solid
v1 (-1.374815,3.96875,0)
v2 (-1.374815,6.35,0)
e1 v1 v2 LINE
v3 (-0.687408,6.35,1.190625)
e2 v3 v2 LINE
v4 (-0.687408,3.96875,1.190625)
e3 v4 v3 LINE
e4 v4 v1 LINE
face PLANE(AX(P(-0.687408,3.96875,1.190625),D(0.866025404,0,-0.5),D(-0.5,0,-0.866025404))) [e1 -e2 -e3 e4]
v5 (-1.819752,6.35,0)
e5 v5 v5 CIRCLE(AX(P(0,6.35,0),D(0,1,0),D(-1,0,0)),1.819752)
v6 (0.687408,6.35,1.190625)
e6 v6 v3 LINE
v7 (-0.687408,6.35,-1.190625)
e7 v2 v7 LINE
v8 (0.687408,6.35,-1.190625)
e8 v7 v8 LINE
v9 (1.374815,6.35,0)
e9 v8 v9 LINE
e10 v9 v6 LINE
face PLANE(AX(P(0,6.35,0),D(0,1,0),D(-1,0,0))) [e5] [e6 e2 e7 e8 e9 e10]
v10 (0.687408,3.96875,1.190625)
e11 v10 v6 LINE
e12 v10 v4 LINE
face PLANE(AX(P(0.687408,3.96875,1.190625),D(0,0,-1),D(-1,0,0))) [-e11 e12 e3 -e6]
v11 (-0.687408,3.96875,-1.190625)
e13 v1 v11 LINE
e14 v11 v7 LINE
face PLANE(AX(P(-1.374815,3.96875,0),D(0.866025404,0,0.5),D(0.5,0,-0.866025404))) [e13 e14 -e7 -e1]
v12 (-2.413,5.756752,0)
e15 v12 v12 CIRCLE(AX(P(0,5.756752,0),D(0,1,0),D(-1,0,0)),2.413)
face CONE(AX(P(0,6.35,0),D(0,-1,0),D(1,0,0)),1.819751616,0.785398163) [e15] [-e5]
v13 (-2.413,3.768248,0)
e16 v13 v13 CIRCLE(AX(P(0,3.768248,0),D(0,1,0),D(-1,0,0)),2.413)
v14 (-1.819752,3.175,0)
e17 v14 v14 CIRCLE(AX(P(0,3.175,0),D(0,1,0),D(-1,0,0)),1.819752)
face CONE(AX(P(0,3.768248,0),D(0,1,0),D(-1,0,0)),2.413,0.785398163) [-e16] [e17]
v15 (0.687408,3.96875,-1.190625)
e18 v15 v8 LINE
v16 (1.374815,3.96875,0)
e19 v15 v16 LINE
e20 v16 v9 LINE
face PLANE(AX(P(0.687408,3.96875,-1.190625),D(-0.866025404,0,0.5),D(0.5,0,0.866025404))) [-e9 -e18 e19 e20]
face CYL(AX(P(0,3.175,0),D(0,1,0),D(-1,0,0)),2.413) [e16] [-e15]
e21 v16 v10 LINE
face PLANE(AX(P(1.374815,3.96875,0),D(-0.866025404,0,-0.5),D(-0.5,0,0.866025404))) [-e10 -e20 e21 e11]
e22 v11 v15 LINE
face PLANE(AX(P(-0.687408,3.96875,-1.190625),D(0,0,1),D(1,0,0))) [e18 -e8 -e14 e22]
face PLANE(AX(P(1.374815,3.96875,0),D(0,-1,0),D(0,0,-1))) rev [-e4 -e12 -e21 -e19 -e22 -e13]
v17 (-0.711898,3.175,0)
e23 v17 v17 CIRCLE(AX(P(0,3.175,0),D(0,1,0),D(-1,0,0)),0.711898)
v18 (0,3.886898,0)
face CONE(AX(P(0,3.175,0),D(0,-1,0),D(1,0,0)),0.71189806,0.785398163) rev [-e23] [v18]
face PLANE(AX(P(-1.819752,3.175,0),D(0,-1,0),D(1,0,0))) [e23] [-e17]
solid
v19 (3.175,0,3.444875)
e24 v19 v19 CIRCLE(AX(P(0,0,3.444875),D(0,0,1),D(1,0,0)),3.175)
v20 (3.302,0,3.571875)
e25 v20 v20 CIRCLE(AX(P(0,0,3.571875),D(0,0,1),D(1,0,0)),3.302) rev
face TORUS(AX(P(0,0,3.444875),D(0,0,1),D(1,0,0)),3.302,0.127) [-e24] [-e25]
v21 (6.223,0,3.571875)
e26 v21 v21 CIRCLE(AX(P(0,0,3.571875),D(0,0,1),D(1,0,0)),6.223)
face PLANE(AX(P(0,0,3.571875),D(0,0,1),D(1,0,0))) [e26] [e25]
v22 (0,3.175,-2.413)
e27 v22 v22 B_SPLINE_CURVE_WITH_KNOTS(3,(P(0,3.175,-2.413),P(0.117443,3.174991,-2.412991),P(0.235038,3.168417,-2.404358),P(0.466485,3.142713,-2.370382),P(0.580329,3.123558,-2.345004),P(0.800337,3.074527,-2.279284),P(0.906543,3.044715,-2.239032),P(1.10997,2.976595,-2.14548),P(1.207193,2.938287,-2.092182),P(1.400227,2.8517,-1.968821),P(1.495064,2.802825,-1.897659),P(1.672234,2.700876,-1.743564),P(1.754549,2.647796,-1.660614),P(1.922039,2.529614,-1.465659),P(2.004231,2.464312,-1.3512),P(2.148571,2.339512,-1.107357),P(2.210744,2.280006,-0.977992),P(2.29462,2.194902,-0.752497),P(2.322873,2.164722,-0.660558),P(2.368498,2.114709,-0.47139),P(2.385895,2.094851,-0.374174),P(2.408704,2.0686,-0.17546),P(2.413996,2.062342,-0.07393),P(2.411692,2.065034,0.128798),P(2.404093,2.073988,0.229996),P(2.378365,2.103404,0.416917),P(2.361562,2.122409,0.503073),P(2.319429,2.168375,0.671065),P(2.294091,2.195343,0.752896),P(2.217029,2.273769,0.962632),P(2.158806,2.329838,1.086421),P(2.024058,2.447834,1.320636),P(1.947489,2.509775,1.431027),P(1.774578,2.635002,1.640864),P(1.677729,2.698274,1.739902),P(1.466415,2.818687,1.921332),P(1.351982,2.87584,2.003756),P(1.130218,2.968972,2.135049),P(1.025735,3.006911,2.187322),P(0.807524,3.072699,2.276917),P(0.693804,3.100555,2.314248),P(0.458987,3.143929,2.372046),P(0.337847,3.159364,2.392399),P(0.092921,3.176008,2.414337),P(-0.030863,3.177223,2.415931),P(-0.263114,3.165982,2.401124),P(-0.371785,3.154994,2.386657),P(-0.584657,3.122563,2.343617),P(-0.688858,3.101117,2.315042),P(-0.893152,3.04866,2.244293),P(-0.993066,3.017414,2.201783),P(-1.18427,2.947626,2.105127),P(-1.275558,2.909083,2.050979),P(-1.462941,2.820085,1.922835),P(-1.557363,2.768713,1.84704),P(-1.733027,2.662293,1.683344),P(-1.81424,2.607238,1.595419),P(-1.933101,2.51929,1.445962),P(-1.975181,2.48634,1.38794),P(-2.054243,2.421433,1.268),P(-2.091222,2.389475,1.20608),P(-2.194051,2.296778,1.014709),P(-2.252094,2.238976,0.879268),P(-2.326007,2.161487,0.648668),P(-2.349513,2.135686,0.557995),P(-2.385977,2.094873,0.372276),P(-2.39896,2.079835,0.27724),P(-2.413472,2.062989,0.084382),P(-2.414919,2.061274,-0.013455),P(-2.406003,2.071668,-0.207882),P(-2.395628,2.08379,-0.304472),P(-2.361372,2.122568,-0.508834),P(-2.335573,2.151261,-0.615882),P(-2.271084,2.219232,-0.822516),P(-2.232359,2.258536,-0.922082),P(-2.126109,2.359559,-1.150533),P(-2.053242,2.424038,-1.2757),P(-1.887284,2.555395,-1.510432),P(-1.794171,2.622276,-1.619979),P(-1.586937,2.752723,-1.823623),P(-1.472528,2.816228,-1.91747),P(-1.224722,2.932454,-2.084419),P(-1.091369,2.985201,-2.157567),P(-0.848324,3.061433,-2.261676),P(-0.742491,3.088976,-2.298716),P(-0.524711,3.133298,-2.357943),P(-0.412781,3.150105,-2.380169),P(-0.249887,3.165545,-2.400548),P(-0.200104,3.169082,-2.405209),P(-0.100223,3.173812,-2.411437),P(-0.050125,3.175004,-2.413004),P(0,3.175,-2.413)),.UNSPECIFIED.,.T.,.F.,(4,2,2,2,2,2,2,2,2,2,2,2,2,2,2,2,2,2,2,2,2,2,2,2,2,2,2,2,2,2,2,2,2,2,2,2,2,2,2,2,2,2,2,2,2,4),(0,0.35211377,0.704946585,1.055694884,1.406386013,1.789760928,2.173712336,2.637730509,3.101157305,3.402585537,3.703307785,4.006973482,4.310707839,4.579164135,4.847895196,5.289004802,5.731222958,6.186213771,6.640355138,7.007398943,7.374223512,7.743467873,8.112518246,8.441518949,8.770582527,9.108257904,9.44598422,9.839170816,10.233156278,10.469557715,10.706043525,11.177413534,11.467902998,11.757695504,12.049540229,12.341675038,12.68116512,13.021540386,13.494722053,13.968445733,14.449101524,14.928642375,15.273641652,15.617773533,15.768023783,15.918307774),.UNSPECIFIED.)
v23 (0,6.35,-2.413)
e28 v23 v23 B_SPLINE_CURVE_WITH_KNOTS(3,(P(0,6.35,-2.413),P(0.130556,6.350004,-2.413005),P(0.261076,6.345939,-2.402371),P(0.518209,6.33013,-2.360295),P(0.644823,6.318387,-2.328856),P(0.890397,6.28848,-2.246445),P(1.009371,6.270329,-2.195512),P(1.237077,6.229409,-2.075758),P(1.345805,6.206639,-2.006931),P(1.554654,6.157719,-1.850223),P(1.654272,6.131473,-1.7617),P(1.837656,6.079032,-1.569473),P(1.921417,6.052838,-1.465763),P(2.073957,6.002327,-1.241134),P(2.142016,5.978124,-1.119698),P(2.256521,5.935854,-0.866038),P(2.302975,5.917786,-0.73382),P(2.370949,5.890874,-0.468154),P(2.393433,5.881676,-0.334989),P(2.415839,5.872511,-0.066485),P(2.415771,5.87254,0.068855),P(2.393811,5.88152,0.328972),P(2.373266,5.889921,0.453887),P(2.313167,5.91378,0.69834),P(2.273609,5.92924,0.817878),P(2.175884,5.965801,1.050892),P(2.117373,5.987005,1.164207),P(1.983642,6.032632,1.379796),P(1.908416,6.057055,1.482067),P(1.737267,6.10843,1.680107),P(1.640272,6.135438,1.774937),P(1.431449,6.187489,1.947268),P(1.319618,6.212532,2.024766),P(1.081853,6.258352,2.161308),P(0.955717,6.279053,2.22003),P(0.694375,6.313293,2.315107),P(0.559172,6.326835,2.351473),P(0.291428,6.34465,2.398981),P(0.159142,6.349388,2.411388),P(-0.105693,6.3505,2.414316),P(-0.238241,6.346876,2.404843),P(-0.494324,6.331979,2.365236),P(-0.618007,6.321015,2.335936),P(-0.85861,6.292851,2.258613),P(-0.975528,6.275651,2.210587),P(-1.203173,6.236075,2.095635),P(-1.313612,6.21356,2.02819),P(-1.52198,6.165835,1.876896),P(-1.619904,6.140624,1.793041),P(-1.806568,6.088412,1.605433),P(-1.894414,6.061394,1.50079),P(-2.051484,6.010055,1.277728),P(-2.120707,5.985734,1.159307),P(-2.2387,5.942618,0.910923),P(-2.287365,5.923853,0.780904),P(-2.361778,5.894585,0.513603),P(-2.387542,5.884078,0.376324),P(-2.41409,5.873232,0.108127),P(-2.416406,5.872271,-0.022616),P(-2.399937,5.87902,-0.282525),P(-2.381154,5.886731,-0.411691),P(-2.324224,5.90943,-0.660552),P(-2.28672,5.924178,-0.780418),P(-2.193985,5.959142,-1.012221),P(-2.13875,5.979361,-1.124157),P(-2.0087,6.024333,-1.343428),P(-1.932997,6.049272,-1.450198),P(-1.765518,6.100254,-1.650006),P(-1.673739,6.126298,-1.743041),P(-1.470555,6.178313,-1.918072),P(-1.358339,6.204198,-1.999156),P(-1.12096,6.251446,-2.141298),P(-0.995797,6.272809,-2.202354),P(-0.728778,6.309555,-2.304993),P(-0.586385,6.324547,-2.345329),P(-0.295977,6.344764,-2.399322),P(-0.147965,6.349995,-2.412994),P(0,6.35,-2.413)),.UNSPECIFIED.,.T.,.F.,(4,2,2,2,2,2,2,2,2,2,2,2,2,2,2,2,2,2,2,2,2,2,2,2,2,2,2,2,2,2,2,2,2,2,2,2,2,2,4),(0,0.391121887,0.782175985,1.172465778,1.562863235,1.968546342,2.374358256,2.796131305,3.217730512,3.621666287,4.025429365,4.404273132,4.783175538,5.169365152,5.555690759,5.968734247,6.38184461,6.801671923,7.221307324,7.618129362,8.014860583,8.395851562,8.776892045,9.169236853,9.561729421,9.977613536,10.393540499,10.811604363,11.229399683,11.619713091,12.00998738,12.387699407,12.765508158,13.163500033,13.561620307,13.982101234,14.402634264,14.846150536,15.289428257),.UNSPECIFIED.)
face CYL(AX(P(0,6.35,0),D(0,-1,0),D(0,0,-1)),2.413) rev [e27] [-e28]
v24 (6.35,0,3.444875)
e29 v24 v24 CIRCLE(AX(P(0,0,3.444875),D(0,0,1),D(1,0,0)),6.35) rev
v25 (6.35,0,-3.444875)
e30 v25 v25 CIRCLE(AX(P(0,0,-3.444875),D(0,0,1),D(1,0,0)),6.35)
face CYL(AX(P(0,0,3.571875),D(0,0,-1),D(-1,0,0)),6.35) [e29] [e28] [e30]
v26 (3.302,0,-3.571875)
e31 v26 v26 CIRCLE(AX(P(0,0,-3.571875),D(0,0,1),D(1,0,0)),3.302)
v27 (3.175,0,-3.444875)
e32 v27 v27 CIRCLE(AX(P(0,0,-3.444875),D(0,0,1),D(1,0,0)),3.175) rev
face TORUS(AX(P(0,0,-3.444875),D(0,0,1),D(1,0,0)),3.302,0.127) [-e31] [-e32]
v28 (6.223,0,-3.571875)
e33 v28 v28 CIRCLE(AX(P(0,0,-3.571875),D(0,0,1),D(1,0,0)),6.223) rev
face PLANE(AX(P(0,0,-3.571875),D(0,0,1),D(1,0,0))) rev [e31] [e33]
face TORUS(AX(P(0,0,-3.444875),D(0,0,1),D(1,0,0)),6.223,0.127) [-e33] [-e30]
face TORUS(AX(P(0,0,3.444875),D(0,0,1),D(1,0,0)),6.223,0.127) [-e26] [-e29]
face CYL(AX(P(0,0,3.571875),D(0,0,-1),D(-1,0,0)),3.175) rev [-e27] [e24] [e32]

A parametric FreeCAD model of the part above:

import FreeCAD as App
import Part
import Sketcher

V = App.Vector
Q = App.Units.Quantity


def edges_at(feature, points):
    """Names of the edges that pass closest to the given points."""
    edges = feature.Shape.Edges
    near = lambda p: min(range(len(edges)), key=lambda i: edges[i].distToShape(Part.Vertex(*p))[0])
    return sorted({f"Edge{near(p) + 1}" for p in points})

doc = App.newDocument("Part")
body = doc.addObject("PartDesign::Body", "Body")

# Sketch on XY plane
sketch1 = body.newObject("Sketcher::SketchObject", "Sketch")
sketch1.AttachmentSupport = (doc.getObject("XY_Plane"), [""])
sketch1.MapMode = "FlatFace"
sketch1.addGeometry(Part.Circle(V(0, 0, 0), V(0, 0, 1), 6.3), False)
sketch1.addGeometry(Part.Circle(V(0, 0, 0), V(0, 0, 1), 3.2), False)
sketch1.addConstraint(Sketcher.Constraint("Coincident", 0, 3, -1, 1))
sketch1.addConstraint(Sketcher.Constraint("Coincident", 1, 3, -1, 1))
sketch1.addConstraint(Sketcher.Constraint("Diameter", 0, Q("0.5 in")))
sketch1.addConstraint(Sketcher.Constraint("Diameter", 1, Q("0.25 in")))
pad1 = body.newObject("PartDesign::Pad", "Pad")
pad1.Profile = sketch1
pad1.Length = Q("0.28125 in")
pad1.Midplane = True

# Sketch on XZ plane
sketch2 = body.newObject("Sketcher::SketchObject", "Sketch001")
sketch2.AttachmentSupport = (doc.getObject("XZ_Plane"), [""])
sketch2.MapMode = "FlatFace"
sketch2.addGeometry(Part.Circle(V(0, 0, 0), V(0, 0, 1), 2.4), False)
sketch2.addConstraint(Sketcher.Constraint("Coincident", 0, 3, -1, 1))
sketch2.addConstraint(Sketcher.Constraint("Diameter", 0, Q("0.19 in")))
pocket1 = body.newObject("PartDesign::Pocket", "Pocket")
pocket1.Profile = sketch2
pocket1.Type = "ThroughAll"
doc.recompute()

fillet = body.newObject("PartDesign::Fillet", "Fillet")
fillet.Base = (pocket1, edges_at(pocket1, [
    (-6.35, 0, -3.572),
    (-6.35, 0, 3.572),
    (-3.175, 0, -3.572),
    (-3.175, 0, 3.572),
]))
fillet.Radius = Q("0.005 in")
body2 = doc.addObject("PartDesign::Body", "Body001")

# Sketch on XY plane
sketch3 = body2.newObject("Sketcher::SketchObject", "Sketch002")
sketch3.AttachmentSupport = (doc.getObject("XY_Plane001"), [""])
sketch3.MapMode = "FlatFace"
sketch3.addGeometry(Part.LineSegment(V(-1.8, 3.2, 0), V(-0.7, 3.2, 0)), False)
sketch3.addGeometry(Part.LineSegment(V(-0.7, 3.2, 0), V(0, 3.9, 0)), False)
sketch3.addGeometry(Part.LineSegment(V(0, 3.9, 0), V(0, 6.3, 0)), False)
sketch3.addGeometry(Part.LineSegment(V(0, 6.3, 0), V(-1.8, 6.3, 0)), False)
sketch3.addGeometry(Part.LineSegment(V(-1.8, 6.3, 0), V(-2.4, 5.8, 0)), False)
sketch3.addGeometry(Part.LineSegment(V(-2.4, 5.8, 0), V(-2.4, 3.8, 0)), False)
sketch3.addGeometry(Part.LineSegment(V(-2.4, 3.8, 0), V(-1.8, 3.2, 0)), False)
sketch3.addConstraint(Sketcher.Constraint("Coincident", 0, 2, 1, 1))
sketch3.addConstraint(Sketcher.Constraint("Coincident", 1, 2, 2, 1))
sketch3.addConstraint(Sketcher.Constraint("Coincident", 2, 2, 3, 1))
sketch3.addConstraint(Sketcher.Constraint("Coincident", 3, 2, 4, 1))
sketch3.addConstraint(Sketcher.Constraint("Coincident", 4, 2, 5, 1))
sketch3.addConstraint(Sketcher.Constraint("Coincident", 5, 2, 6, 1))
sketch3.addConstraint(Sketcher.Constraint("Coincident", 6, 2, 0, 1))
sketch3.addConstraint(Sketcher.Constraint("Horizontal", 0))
sketch3.addConstraint(Sketcher.Constraint("Vertical", 2))
sketch3.addConstraint(Sketcher.Constraint("Horizontal", 3))
sketch3.addConstraint(Sketcher.Constraint("Vertical", 5))
sketch3.addConstraint(Sketcher.Constraint("PointOnObject", 1, 2, -2))
sketch3.addConstraint(Sketcher.Constraint("Parallel", 1, 4))
sketch3.addConstraint(Sketcher.Constraint("Perpendicular", 4, 6))
sketch3.addConstraint(Sketcher.Constraint("Vertical", 3, 2, 6, 2))
sketch3.addConstraint(Sketcher.Constraint("Equal", 4, 6))
sketch3.addConstraint(Sketcher.Constraint("DistanceY", -1, 1, 2, 2, Q("0.25 in")))
sketch3.addConstraint(Sketcher.Constraint("DistanceY", -1, 1, 0, 2, Q("0.125 in")))
sketch3.addConstraint(Sketcher.Constraint("DistanceX", 4, 2, -1, 1, Q("0.095 in")))
sketch3.addConstraint(Sketcher.Constraint("DistanceY", 2, 1, 2, 2, 2.463102))
sketch3.addConstraint(Sketcher.Constraint("DistanceX", 3, 2, 3, 1, 1.819752))
revolution = body2.newObject("PartDesign::Revolution", "Revolution")
revolution.Profile = sketch3
revolution.ReferenceAxis = (sketch3, ["V_Axis"])
revolution.Angle = 360

# Sketch on XZ plane
sketch4 = body2.newObject("Sketcher::SketchObject", "Sketch003")
sketch4.AttachmentSupport = (doc.getObject("XZ_Plane001"), [""])
sketch4.MapMode = "FlatFace"
sketch4.AttachmentOffset = App.Placement(V(0, 0, -0.25 * 25.4), App.Rotation())
sketch4.addGeometry(Part.LineSegment(V(1.4, 0, 0), V(0.7, 1.2, 0)), False)
sketch4.addGeometry(Part.LineSegment(V(0.7, 1.2, 0), V(-0.7, 1.2, 0)), False)
sketch4.addGeometry(Part.LineSegment(V(-0.7, 1.2, 0), V(-1.4, 0, 0)), False)
sketch4.addGeometry(Part.LineSegment(V(-1.4, 0, 0), V(-0.7, -1.2, 0)), False)
sketch4.addGeometry(Part.LineSegment(V(-0.7, -1.2, 0), V(0.7, -1.2, 0)), False)
sketch4.addGeometry(Part.LineSegment(V(0.7, -1.2, 0), V(1.4, 0, 0)), False)
sketch4.addConstraint(Sketcher.Constraint("Coincident", 0, 2, 1, 1))
sketch4.addConstraint(Sketcher.Constraint("Coincident", 1, 2, 2, 1))
sketch4.addConstraint(Sketcher.Constraint("Coincident", 2, 2, 3, 1))
sketch4.addConstraint(Sketcher.Constraint("Coincident", 3, 2, 4, 1))
sketch4.addConstraint(Sketcher.Constraint("Coincident", 4, 2, 5, 1))
sketch4.addConstraint(Sketcher.Constraint("Coincident", 5, 2, 0, 1))
sketch4.addConstraint(Sketcher.Constraint("Horizontal", 1))
sketch4.addConstraint(Sketcher.Constraint("Horizontal", 4))
sketch4.addConstraint(Sketcher.Constraint("Symmetric", 0, 2, 3, 2, -1, 1))
sketch4.addConstraint(Sketcher.Constraint("Symmetric", 2, 2, 5, 2, -1, 1))
sketch4.addConstraint(Sketcher.Constraint("PointOnObject", 2, 2, -1))
sketch4.addConstraint(Sketcher.Constraint("Parallel", 2, 5))
sketch4.addConstraint(Sketcher.Constraint("Vertical", 1, 2, 3, 2))
sketch4.addConstraint(Sketcher.Constraint("Angle", 0, Q("120 deg")))
sketch4.addConstraint(Sketcher.Constraint("DistanceY", -1, 1, 0, 2, Q("0.046875 in")))
sketch4.addConstraint(Sketcher.Constraint("DistanceX", 1, 2, 1, 1, 1.374815))
pocket2 = body2.newObject("PartDesign::Pocket", "Pocket001")
pocket2.Profile = sketch4
pocket2.Length = Q("0.09375 in")
pocket2.Reversed = True

doc.recompute()
